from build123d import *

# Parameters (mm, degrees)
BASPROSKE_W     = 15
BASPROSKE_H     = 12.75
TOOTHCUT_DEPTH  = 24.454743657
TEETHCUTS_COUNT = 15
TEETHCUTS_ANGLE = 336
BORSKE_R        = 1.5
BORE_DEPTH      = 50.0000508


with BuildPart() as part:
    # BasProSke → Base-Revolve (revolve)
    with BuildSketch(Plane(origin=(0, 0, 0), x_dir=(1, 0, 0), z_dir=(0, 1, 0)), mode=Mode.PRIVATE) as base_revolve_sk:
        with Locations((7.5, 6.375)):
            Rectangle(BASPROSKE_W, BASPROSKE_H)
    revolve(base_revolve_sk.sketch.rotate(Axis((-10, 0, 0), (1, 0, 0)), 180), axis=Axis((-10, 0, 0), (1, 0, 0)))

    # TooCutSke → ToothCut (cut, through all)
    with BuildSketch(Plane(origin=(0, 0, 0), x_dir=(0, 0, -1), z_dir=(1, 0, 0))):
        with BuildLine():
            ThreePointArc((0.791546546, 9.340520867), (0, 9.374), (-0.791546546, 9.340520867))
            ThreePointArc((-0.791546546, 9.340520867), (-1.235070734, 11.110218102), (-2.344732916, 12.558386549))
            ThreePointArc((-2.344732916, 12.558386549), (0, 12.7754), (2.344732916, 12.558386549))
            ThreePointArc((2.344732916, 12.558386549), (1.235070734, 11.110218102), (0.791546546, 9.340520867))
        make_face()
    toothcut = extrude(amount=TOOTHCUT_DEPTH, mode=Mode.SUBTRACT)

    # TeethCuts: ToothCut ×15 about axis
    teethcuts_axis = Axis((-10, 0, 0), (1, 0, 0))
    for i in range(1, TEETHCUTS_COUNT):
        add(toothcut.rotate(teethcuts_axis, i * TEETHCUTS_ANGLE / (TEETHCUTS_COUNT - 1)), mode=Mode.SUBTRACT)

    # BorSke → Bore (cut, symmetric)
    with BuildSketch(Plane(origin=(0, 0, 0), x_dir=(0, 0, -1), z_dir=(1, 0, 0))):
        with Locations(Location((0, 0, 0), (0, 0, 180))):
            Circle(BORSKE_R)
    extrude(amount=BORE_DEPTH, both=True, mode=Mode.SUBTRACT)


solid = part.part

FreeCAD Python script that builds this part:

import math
import FreeCAD as App
import Part
import Sketcher

V = App.Vector

doc = App.newDocument("Part")
body = doc.addObject("PartDesign::Body", "Body")

# Sketch on XZ plane
sketch1 = doc.addObject("Sketcher::SketchObject", "Sketch")
body.addObject(sketch1)
sketch1.AttachmentSupport = (doc.XZ_Plane, [""])
sketch1.MapMode = "FlatFace"
sketch1.addGeometry(Part.LineSegment(V(0, -12.75, 0), V(0, 0, 0)), False)
sketch1.addGeometry(Part.LineSegment(V(0, 0, 0), V(15, 0, 0)), False)
sketch1.addGeometry(Part.LineSegment(V(15, 0, 0), V(15, -12.75, 0)), False)
sketch1.addGeometry(Part.LineSegment(V(15, -12.75, 0), V(0, -12.75, 0)), False)
sketch1.addConstraint(Sketcher.Constraint("Coincident", 0, 2, 1, 1))
sketch1.addConstraint(Sketcher.Constraint("Coincident", 1, 2, 2, 1))
sketch1.addConstraint(Sketcher.Constraint("Coincident", 2, 2, 3, 1))
sketch1.addConstraint(Sketcher.Constraint("Coincident", 3, 2, 0, 1))
sketch1.addConstraint(Sketcher.Constraint("Vertical", 0))
sketch1.addConstraint(Sketcher.Constraint("Horizontal", 1))
sketch1.addConstraint(Sketcher.Constraint("Vertical", 2))
sketch1.addConstraint(Sketcher.Constraint("Horizontal", 3))
sketch1.addConstraint(Sketcher.Constraint("Coincident", 0, 2, -1, 1))
sketch1.addConstraint(Sketcher.Constraint("DistanceX", 1, 1, 1, 2, 15.0))
sketch1.addConstraint(Sketcher.Constraint("DistanceY", 0, 1, 0, 2, 12.75))
revolution = doc.addObject("PartDesign::Revolution", "Revolution")
body.addObject(revolution)
revolution.Profile = sketch1
revolution.ReferenceAxis = (sketch1, ["H_Axis"])
revolution.Angle = 360

# Sketch on YZ plane
sketch2 = doc.addObject("Sketcher::SketchObject", "Sketch001")
body.addObject(sketch2)
sketch2.AttachmentSupport = (doc.YZ_Plane, [""])
sketch2.MapMode = "FlatFace"
sketch2.addGeometry(Part.ArcOfCircle(Part.Circle(V(0, 0, 0), V(0, 0, 1), 9.374), math.radians(-4.84386), math.radians(4.84386)), False)
sketch2.addGeometry(Part.ArcOfCircle(Part.Circle(V(9.154119, -5.287684, 0), V(0, 0, 1), 4.5), math.radians(40.843049), math.radians(87.625979)), False)
sketch2.addGeometry(Part.ArcOfCircle(Part.Circle(V(0, 0, 0), V(0, 0, 1), 12.7754), math.radians(-10.575731), math.radians(10.575731)), False)
sketch2.addGeometry(Part.ArcOfCircle(Part.Circle(V(9.154119, 5.287684, 0), V(0, 0, 1), 4.5), math.radians(-87.625979), math.radians(-40.843049)), False)
sketch2.addConstraint(Sketcher.Constraint("Coincident", 0, 1, 1, 2))
sketch2.addConstraint(Sketcher.Constraint("Coincident", 1, 1, 2, 1))
sketch2.addConstraint(Sketcher.Constraint("Coincident", 2, 2, 3, 2))
sketch2.addConstraint(Sketcher.Constraint("Coincident", 3, 1, 0, 2))
sketch2.addConstraint(Sketcher.Constraint("Coincident", 0, 3, -1, 1))
sketch2.addConstraint(Sketcher.Constraint("Coincident", 2, 3, -1, 1))
sketch2.addConstraint(Sketcher.Constraint("Equal", 1, 3))
sketch2.addConstraint(Sketcher.Constraint("Symmetric", 1, 3, 3, 3, -1))
sketch2.addConstraint(Sketcher.Constraint("Radius", 1, 4.5))
sketch2.addConstraint(Sketcher.Constraint("Radius", 0, 9.374))
sketch2.addConstraint(Sketcher.Constraint("Radius", 2, 12.7754))
sketch2.addConstraint(Sketcher.Constraint("DistanceX", 1, 3, 0, 1, 0.186402))
sketch2.addConstraint(Sketcher.Constraint("DistanceX", -1, 1, 1, 3, 9.154119))
pocket1 = doc.addObject("PartDesign::Pocket", "Pocket")
body.addObject(pocket1)
pocket1.Profile = sketch2
pocket1.Type = "ThroughAll"
pocket1.Reversed = True
doc.recompute()

polarpattern = doc.addObject("PartDesign::PolarPattern", "PolarPattern")
body.addObject(polarpattern)
polarpattern.Originals = [pocket1]
polarpattern.Axis = (doc.X_Axis, [""])
polarpattern.Angle = 360
polarpattern.Occurrences = 15
body.Tip = polarpattern

# Sketch on YZ plane
sketch3 = doc.addObject("Sketcher::SketchObject", "Sketch002")
body.addObject(sketch3)
sketch3.AttachmentSupport = (doc.YZ_Plane, [""])
sketch3.MapMode = "FlatFace"
sketch3.addGeometry(Part.Circle(V(0, 0, 0), V(0, 0, 1), 1.5), False)
sketch3.addConstraint(Sketcher.Constraint("Coincident", 0, 3, -1, 1))
sketch3.addConstraint(Sketcher.Constraint("Diameter", 0, 3.0))
pocket2 = doc.addObject("PartDesign::Pocket", "Pocket001")
body.addObject(pocket2)
pocket2.Profile = sketch3
pocket2.Length = 100.000102
pocket2.Midplane = True

doc.recompute()
